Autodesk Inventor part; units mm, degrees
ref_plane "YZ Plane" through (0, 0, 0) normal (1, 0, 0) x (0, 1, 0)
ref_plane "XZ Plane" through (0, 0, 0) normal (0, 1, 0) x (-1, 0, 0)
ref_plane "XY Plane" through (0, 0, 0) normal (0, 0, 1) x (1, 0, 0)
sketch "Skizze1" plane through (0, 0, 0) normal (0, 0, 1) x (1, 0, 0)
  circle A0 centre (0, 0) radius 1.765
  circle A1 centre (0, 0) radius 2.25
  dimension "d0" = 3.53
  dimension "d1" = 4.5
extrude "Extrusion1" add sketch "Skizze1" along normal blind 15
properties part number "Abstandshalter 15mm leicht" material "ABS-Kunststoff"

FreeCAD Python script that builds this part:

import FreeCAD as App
import Part
import Sketcher
Q = App.Units.Quantity

doc = App.newDocument("Part")
params = doc.addObject("Spreadsheet::Sheet", "Params")
for row, (alias, value) in enumerate([
    ("sketch1_diameter", "4.5 mm"),
    ("sketch1_diameter2", "3.53 mm"),
    ("pad1_length", "15 mm"),
], start=1):
    params.set(f"A{row}", alias)
    params.set(f"B{row}", "=" + value)
    params.setAlias(f"B{row}", alias)

body = doc.addObject("PartDesign::Body", "Body")

# Sketch on XY plane
sketch1 = body.newObject("Sketcher::SketchObject", "Sketch")
sketch1.AttachmentSupport = (doc.getObject("XY_Plane"), [""])
sketch1.MapMode = "FlatFace"
sketch1.addGeometry([
    Part.Circle(App.Vector(0, 0, 0), App.Vector(0, 0, 1), 2.2),
    Part.Circle(App.Vector(0, 0, 0), App.Vector(0, 0, 1), 1.8),
], False)
sketch1.addConstraint([
    Sketcher.Constraint("Coincident", 0, 3, -1, 1),
    Sketcher.Constraint("Coincident", 1, 3, -1, 1),
    Sketcher.Constraint("Diameter", 0, Q("4.5 mm")),
    Sketcher.Constraint("Diameter", 1, Q("3.53 mm")),
])
sketch1.setExpression("Constraints[2]", "Params.sketch1_diameter")
sketch1.setExpression("Constraints[3]", "Params.sketch1_diameter2")
pad1 = body.newObject("PartDesign::Pad", "Pad")
pad1.Profile = sketch1
pad1.setExpression("Length", "Params.pad1_length")

doc.recompute()
